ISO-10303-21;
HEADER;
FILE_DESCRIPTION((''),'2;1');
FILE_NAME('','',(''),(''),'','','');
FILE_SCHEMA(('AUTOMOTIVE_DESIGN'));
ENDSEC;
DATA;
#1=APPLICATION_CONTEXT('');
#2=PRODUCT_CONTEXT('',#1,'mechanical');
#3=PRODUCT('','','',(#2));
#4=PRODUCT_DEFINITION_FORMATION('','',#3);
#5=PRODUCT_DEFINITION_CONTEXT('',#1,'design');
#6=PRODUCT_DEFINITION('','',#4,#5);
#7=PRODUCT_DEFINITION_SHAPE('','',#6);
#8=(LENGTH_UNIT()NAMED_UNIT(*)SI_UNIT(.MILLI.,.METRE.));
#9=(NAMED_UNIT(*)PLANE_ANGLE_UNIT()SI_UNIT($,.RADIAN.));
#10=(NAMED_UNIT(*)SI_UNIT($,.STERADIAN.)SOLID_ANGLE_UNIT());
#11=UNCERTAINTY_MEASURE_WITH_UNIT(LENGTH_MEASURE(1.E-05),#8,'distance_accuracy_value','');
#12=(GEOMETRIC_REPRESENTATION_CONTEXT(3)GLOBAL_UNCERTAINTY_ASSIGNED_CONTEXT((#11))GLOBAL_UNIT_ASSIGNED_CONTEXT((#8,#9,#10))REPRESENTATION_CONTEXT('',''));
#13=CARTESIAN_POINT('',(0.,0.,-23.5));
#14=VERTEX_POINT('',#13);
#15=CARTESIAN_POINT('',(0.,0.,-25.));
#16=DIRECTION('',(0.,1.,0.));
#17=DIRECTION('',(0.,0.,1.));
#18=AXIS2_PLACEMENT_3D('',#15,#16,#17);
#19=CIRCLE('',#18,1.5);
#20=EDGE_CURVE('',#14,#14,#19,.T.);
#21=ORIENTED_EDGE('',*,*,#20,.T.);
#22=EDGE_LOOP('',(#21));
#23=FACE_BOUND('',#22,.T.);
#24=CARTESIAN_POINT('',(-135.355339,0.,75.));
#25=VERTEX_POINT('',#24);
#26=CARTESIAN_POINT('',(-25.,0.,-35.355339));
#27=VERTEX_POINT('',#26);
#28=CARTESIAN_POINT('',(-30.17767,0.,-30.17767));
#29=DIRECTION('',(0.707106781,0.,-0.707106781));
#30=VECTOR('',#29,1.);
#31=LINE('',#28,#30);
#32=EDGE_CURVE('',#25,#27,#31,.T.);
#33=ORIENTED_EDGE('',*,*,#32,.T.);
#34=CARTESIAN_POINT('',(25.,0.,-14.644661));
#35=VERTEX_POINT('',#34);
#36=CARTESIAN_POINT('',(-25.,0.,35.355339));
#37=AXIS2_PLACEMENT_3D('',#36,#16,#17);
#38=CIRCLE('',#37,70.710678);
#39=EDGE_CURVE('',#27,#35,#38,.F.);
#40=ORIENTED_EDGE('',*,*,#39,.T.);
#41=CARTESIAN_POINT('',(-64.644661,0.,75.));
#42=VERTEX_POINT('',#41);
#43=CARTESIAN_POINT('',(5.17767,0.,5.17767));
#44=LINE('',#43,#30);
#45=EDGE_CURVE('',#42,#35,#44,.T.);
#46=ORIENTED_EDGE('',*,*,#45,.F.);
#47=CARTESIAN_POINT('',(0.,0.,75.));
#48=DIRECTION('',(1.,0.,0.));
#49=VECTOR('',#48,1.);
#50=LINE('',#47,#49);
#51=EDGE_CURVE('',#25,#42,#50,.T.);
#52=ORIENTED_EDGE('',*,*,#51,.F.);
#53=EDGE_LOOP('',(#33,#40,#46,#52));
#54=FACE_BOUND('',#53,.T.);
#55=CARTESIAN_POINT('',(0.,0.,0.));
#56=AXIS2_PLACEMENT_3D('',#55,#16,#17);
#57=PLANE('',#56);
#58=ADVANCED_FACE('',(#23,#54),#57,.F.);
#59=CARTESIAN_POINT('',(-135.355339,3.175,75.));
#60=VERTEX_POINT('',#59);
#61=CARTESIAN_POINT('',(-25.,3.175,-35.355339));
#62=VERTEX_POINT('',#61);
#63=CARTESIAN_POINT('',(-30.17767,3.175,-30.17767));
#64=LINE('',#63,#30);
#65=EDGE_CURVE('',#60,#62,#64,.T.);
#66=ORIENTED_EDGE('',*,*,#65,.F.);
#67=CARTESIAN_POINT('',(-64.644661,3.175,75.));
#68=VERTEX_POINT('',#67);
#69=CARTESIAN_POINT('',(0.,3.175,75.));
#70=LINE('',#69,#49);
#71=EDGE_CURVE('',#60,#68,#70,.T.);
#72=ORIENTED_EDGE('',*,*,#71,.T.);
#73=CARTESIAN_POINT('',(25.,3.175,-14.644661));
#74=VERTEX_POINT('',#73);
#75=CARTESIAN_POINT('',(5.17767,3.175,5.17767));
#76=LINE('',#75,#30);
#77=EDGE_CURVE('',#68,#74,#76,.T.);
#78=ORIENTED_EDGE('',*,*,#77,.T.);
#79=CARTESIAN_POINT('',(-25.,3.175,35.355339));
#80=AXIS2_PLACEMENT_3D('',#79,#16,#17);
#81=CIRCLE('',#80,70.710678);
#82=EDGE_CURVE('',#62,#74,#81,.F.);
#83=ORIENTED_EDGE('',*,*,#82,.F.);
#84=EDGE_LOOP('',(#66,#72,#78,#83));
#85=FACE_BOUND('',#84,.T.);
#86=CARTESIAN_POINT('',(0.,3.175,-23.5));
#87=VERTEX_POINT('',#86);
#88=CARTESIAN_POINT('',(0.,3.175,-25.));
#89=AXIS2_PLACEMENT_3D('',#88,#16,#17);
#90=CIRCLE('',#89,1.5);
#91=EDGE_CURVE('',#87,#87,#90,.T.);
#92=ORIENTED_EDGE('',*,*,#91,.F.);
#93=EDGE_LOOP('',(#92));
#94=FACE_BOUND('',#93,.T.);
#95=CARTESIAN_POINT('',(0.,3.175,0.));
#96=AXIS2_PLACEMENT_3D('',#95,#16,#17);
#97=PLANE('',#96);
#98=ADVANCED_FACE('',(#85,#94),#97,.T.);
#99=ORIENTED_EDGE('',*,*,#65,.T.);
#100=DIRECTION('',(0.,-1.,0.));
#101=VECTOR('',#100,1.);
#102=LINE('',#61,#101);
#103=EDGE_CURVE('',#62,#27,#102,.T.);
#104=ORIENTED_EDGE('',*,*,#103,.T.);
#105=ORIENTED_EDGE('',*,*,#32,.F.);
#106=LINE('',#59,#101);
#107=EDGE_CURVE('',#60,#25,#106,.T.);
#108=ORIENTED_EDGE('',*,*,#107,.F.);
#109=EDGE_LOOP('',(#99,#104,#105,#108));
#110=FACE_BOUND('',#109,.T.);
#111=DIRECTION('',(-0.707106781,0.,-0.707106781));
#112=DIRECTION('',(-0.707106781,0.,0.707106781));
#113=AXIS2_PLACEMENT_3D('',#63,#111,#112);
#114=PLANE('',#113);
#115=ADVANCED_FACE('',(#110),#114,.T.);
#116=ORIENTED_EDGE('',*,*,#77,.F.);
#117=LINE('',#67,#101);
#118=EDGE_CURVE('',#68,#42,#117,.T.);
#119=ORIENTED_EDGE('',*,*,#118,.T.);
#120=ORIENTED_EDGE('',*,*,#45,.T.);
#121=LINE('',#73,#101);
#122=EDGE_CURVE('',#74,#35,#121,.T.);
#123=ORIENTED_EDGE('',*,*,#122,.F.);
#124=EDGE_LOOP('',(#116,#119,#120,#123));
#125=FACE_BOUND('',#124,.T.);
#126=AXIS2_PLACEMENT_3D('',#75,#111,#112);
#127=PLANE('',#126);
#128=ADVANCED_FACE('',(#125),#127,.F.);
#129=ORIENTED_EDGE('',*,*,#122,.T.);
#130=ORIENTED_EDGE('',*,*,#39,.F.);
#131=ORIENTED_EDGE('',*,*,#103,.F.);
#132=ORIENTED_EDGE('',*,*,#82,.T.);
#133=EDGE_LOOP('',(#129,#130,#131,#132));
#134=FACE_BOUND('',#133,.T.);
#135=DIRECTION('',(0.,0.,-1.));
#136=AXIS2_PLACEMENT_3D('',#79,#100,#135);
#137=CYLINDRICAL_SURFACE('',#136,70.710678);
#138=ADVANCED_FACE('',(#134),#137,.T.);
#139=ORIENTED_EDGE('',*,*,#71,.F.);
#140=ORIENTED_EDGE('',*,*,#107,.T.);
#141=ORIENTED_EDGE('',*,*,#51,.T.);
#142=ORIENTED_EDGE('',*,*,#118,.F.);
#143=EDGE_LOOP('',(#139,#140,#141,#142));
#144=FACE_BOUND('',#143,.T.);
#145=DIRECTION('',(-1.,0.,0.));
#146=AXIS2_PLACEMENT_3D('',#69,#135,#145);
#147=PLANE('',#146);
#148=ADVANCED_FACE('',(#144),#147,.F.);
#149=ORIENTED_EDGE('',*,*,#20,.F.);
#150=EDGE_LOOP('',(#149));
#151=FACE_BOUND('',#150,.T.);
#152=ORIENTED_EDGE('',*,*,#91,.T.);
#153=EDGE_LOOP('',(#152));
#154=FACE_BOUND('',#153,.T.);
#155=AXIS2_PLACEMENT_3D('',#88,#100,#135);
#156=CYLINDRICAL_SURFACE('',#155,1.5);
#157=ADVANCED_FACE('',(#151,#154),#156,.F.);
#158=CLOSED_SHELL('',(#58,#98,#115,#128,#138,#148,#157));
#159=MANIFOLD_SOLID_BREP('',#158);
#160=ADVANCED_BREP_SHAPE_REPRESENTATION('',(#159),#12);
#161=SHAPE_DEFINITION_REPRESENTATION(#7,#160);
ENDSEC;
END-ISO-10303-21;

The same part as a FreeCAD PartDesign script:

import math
import FreeCAD as App
import Part
import Sketcher
from FreeCAD import Vector
Q = App.Units.Quantity

doc = App.newDocument("Part")
params = doc.addObject("Spreadsheet::Sheet", "Params")
for row, (alias, value) in enumerate([
    ("sketch1_diameter", "3 mm"),
    ("pad1_length", "3.175 mm"),
], start=1):
    params.set(f"A{row}", alias)
    params.set(f"B{row}", "=" + value)
    params.setAlias(f"B{row}", alias)

body = doc.addObject("PartDesign::Body", "Body")

# Sketch on XZ plane
sketch1 = body.newObject("Sketcher::SketchObject", "Sketch")
sketch1.AttachmentSupport = (doc.getObject("XZ_Plane"), [""])
sketch1.MapMode = "FlatFace"
sketch1.addGeometry(Part.ArcOfCircle(Part.Circle(Vector(-25, 35.355339, 0), Vector(0, 0, 1), 70.710678), math.radians(-90), math.radians(-45)), False)
sketch1.addGeometry(Part.LineSegment(Vector(-25, -35.355339, 0), Vector(-135.355339, 75, 0)), False)
sketch1.addGeometry(Part.LineSegment(Vector(-135.355339, 75, 0), Vector(-64.644661, 75, 0)), False)
sketch1.addGeometry(Part.LineSegment(Vector(-64.644661, 75, 0), Vector(25, -14.644661, 0)), False)
sketch1.addGeometry(Part.Circle(Vector(0, -25, 0), Vector(0, 0, 1), 1.5), False)
sketch1.addConstraint(Sketcher.Constraint("Coincident", 0, 1, 1, 1))
sketch1.addConstraint(Sketcher.Constraint("Coincident", 1, 2, 2, 1))
sketch1.addConstraint(Sketcher.Constraint("Coincident", 2, 2, 3, 1))
sketch1.addConstraint(Sketcher.Constraint("Coincident", 3, 2, 0, 2))
sketch1.addConstraint(Sketcher.Constraint("Horizontal", 2))
sketch1.addConstraint(Sketcher.Constraint("PointOnObject", 4, 3, -2))
sketch1.addConstraint(Sketcher.Constraint("Parallel", 1, 3))
sketch1.addConstraint(Sketcher.Constraint("Diameter", 4, Q("3 mm")))
sketch1.addConstraint(Sketcher.Constraint("Angle", 1, Q("135 deg")))
sketch1.addConstraint(Sketcher.Constraint("DistanceX", 0, 3, -1, 1, Q("25 mm")))
sketch1.addConstraint(Sketcher.Constraint("DistanceY", 4, 3, -1, 1, Q("25 mm")))
sketch1.addConstraint(Sketcher.Constraint("DistanceX", 0, 1, -1, 1, Q("25 mm")))
sketch1.addConstraint(Sketcher.Constraint("DistanceY", -1, 1, 1, 2, Q("75 mm")))
sketch1.addConstraint(Sketcher.Constraint("DistanceX", -1, 1, 3, 2, Q("25 mm")))
sketch1.addConstraint(Sketcher.Constraint("DistanceY", 3, 2, 0, 3, Q("50 mm")))
sketch1.addConstraint(Sketcher.Constraint("DistanceY", -1, 1, 0, 3, Q("35.355339 mm")))
sketch1.setExpression("Constraints[7]", "Params.sketch1_diameter")
pad1 = body.newObject("PartDesign::Pad", "Pad")
pad1.Profile = sketch1
pad1.setExpression("Length", "Params.pad1_length")
pad1.Reversed = True

doc.recompute()
